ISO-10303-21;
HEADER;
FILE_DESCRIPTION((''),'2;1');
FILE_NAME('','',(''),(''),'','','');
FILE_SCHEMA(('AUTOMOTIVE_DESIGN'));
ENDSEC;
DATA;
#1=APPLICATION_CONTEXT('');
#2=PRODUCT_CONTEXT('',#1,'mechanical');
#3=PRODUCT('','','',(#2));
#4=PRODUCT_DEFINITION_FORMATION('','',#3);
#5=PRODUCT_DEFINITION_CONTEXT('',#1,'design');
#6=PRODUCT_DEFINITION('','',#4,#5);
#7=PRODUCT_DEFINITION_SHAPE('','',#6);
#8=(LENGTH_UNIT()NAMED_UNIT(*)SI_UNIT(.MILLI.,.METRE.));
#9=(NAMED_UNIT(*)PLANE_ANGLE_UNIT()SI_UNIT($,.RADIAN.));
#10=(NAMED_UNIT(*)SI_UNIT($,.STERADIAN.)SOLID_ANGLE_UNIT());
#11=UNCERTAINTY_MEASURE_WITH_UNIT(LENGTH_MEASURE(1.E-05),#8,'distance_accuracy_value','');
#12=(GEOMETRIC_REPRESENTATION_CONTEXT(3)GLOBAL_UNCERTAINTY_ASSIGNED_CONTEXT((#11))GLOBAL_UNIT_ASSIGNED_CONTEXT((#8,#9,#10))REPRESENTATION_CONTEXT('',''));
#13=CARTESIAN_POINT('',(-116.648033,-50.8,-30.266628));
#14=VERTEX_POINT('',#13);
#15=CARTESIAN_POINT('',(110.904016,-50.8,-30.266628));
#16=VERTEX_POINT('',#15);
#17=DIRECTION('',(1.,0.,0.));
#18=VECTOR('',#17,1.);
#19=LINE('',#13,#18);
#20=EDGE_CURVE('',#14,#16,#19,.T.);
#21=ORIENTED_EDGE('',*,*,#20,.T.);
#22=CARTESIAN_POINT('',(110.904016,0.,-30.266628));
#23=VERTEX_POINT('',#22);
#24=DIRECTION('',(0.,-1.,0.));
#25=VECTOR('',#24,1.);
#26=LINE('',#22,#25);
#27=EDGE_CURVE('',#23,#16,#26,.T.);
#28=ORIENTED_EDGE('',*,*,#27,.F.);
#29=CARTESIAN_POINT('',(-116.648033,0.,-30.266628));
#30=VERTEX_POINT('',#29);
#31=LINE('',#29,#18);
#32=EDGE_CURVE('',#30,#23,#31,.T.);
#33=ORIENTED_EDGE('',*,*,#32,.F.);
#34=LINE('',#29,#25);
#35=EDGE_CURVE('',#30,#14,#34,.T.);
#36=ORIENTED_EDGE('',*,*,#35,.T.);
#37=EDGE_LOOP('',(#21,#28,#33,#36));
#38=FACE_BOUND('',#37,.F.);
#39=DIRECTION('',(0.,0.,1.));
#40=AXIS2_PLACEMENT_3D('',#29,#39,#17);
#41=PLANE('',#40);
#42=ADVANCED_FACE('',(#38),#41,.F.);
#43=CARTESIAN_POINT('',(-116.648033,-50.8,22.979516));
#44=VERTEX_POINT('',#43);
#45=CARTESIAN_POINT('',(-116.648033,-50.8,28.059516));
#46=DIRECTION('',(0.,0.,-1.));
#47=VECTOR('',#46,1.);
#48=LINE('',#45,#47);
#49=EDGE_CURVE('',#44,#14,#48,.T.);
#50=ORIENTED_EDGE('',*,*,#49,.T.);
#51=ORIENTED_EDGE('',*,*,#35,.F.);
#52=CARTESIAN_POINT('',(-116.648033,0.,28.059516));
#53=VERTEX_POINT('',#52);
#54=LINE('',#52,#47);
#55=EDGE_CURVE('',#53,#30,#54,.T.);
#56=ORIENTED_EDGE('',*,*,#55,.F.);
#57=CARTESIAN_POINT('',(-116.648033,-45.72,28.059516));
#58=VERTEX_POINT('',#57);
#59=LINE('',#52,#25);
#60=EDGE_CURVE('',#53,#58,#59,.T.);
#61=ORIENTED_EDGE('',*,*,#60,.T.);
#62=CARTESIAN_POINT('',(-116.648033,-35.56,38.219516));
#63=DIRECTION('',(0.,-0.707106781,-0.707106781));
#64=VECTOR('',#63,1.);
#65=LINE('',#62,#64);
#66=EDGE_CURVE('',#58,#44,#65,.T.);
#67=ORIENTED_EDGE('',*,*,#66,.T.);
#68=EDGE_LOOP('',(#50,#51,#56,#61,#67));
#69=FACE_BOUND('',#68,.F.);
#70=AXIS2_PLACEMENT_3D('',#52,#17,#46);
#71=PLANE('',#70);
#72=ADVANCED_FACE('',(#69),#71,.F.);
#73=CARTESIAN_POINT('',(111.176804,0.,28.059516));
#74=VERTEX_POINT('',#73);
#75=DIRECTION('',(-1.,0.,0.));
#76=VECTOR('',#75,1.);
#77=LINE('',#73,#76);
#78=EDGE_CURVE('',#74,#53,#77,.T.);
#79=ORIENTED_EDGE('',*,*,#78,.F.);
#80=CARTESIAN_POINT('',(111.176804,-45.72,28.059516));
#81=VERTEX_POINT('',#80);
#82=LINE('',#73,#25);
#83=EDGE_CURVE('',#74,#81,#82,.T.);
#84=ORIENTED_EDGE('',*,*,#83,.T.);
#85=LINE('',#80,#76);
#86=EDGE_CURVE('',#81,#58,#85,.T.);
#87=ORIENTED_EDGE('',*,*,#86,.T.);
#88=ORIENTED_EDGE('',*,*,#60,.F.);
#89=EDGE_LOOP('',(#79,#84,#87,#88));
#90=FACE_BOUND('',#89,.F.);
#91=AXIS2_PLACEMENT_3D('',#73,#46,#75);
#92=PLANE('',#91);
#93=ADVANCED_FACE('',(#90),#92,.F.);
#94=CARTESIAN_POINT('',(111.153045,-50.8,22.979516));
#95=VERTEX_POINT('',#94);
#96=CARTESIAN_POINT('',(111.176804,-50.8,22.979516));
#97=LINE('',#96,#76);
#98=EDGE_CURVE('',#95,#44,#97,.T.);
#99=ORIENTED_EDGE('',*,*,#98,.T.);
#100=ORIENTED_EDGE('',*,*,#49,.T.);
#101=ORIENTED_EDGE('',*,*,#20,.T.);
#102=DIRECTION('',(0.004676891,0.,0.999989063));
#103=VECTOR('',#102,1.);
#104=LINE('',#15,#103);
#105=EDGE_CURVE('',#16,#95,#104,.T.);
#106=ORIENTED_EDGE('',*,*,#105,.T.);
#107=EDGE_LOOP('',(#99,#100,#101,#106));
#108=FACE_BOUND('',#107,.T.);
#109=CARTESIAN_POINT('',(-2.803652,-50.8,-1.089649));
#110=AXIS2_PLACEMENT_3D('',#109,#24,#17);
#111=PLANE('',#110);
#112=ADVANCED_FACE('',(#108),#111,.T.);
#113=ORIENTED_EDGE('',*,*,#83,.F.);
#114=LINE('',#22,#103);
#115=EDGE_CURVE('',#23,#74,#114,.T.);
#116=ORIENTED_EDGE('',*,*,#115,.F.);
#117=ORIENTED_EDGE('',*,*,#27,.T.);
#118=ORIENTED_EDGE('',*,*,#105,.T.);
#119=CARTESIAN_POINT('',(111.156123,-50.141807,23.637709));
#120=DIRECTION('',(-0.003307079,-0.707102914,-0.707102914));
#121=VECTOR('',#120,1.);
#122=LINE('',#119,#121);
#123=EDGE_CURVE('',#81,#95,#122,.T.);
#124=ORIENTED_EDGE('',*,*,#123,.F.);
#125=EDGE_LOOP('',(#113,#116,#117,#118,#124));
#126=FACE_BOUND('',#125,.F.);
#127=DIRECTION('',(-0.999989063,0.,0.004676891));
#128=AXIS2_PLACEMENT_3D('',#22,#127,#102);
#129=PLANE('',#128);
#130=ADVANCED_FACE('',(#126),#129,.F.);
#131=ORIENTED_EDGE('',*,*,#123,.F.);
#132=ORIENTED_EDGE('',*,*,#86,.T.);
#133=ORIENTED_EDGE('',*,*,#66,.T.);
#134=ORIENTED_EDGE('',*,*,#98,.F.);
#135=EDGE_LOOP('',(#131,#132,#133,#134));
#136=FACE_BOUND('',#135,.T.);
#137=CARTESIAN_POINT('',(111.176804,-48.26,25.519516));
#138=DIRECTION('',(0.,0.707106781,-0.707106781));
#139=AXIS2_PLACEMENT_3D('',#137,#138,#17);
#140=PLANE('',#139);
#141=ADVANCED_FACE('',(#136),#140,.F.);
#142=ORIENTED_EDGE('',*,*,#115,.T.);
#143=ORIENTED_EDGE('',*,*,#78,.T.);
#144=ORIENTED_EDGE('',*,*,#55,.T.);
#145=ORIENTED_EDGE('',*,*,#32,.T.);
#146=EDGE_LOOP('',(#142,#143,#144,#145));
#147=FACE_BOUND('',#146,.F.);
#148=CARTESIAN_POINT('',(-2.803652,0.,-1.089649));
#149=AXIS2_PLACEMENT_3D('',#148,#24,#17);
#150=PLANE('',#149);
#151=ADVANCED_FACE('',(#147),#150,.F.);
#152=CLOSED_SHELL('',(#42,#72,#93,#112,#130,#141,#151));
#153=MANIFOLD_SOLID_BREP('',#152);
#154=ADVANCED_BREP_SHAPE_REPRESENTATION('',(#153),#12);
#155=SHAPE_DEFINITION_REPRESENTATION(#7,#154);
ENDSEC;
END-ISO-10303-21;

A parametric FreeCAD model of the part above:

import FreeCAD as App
import Part
import Sketcher
Q = App.Units.Quantity


def edges_at(feature, points):
    """Names of the edges that pass closest to the given points."""
    edges = feature.Shape.Edges
    near = lambda p: min(range(len(edges)), key=lambda i: edges[i].distToShape(Part.Vertex(*p))[0])
    return sorted({f"Edge{near(p) + 1}" for p in points})


def add_polygon(sketch, points):
    """Adds a closed chain of lines whose ends are joined by coincident constraints."""
    first, n = sketch.GeometryCount, len(points)
    for a, b in zip(points, points[1:] + points[:1]):
        sketch.addGeometry(Part.LineSegment(App.Vector(*a, 0), App.Vector(*b, 0)), False)
    for i in range(n):
        sketch.addConstraint(Sketcher.Constraint("Coincident", first + i, 2, first + (i + 1) % n, 1))

doc = App.newDocument("Part")
body = doc.addObject("PartDesign::Body", "Body")

sketch1 = doc.addObject("Sketcher::SketchObject", "Sketch")
body.addObject(sketch1)
sketch1.AttachmentSupport = (doc.XZ_Plane, [""])
sketch1.MapMode = "FlatFace"
add_polygon(sketch1, [(-116.648033, 28.059516), (-116.648033, -30.266628), (110.904016, -30.266628), (111.176804, 28.059516)])
sketch1.addConstraint(Sketcher.Constraint("Vertical", 0))
sketch1.addConstraint(Sketcher.Constraint("Horizontal", 1))
sketch1.addConstraint(Sketcher.Constraint("Horizontal", 3))
sketch1.addConstraint(Sketcher.Constraint("DistanceX", -1, 1, 1, 2, Q("4.3662998 in")))
sketch1.addConstraint(Sketcher.Constraint("DistanceX", 1, 1, 1, 2, Q("227.552049 mm")))
sketch1.addConstraint(Sketcher.Constraint("Distance", 2, Q("58.326782 mm")))
sketch1.addConstraint(Sketcher.Constraint("DistanceX", 3, 2, 3, 1, Q("227.824837 mm")))
sketch1.addConstraint(Sketcher.Constraint("DistanceY", 0, 2, -1, 1, Q("30.266628 mm")))
pad1 = doc.addObject("PartDesign::Pad", "Pad")
body.addObject(pad1)
pad1.Profile = sketch1
pad1.Length = Q("2 in")
doc.recompute()

chamfer = doc.addObject("PartDesign::Chamfer", "Chamfer")
body.addObject(chamfer)
chamfer.Base = (pad1, edges_at(pad1, [(-2.736, -50.8, 28.06)]))
chamfer.Size = Q("0.2 in")

doc.recompute()
